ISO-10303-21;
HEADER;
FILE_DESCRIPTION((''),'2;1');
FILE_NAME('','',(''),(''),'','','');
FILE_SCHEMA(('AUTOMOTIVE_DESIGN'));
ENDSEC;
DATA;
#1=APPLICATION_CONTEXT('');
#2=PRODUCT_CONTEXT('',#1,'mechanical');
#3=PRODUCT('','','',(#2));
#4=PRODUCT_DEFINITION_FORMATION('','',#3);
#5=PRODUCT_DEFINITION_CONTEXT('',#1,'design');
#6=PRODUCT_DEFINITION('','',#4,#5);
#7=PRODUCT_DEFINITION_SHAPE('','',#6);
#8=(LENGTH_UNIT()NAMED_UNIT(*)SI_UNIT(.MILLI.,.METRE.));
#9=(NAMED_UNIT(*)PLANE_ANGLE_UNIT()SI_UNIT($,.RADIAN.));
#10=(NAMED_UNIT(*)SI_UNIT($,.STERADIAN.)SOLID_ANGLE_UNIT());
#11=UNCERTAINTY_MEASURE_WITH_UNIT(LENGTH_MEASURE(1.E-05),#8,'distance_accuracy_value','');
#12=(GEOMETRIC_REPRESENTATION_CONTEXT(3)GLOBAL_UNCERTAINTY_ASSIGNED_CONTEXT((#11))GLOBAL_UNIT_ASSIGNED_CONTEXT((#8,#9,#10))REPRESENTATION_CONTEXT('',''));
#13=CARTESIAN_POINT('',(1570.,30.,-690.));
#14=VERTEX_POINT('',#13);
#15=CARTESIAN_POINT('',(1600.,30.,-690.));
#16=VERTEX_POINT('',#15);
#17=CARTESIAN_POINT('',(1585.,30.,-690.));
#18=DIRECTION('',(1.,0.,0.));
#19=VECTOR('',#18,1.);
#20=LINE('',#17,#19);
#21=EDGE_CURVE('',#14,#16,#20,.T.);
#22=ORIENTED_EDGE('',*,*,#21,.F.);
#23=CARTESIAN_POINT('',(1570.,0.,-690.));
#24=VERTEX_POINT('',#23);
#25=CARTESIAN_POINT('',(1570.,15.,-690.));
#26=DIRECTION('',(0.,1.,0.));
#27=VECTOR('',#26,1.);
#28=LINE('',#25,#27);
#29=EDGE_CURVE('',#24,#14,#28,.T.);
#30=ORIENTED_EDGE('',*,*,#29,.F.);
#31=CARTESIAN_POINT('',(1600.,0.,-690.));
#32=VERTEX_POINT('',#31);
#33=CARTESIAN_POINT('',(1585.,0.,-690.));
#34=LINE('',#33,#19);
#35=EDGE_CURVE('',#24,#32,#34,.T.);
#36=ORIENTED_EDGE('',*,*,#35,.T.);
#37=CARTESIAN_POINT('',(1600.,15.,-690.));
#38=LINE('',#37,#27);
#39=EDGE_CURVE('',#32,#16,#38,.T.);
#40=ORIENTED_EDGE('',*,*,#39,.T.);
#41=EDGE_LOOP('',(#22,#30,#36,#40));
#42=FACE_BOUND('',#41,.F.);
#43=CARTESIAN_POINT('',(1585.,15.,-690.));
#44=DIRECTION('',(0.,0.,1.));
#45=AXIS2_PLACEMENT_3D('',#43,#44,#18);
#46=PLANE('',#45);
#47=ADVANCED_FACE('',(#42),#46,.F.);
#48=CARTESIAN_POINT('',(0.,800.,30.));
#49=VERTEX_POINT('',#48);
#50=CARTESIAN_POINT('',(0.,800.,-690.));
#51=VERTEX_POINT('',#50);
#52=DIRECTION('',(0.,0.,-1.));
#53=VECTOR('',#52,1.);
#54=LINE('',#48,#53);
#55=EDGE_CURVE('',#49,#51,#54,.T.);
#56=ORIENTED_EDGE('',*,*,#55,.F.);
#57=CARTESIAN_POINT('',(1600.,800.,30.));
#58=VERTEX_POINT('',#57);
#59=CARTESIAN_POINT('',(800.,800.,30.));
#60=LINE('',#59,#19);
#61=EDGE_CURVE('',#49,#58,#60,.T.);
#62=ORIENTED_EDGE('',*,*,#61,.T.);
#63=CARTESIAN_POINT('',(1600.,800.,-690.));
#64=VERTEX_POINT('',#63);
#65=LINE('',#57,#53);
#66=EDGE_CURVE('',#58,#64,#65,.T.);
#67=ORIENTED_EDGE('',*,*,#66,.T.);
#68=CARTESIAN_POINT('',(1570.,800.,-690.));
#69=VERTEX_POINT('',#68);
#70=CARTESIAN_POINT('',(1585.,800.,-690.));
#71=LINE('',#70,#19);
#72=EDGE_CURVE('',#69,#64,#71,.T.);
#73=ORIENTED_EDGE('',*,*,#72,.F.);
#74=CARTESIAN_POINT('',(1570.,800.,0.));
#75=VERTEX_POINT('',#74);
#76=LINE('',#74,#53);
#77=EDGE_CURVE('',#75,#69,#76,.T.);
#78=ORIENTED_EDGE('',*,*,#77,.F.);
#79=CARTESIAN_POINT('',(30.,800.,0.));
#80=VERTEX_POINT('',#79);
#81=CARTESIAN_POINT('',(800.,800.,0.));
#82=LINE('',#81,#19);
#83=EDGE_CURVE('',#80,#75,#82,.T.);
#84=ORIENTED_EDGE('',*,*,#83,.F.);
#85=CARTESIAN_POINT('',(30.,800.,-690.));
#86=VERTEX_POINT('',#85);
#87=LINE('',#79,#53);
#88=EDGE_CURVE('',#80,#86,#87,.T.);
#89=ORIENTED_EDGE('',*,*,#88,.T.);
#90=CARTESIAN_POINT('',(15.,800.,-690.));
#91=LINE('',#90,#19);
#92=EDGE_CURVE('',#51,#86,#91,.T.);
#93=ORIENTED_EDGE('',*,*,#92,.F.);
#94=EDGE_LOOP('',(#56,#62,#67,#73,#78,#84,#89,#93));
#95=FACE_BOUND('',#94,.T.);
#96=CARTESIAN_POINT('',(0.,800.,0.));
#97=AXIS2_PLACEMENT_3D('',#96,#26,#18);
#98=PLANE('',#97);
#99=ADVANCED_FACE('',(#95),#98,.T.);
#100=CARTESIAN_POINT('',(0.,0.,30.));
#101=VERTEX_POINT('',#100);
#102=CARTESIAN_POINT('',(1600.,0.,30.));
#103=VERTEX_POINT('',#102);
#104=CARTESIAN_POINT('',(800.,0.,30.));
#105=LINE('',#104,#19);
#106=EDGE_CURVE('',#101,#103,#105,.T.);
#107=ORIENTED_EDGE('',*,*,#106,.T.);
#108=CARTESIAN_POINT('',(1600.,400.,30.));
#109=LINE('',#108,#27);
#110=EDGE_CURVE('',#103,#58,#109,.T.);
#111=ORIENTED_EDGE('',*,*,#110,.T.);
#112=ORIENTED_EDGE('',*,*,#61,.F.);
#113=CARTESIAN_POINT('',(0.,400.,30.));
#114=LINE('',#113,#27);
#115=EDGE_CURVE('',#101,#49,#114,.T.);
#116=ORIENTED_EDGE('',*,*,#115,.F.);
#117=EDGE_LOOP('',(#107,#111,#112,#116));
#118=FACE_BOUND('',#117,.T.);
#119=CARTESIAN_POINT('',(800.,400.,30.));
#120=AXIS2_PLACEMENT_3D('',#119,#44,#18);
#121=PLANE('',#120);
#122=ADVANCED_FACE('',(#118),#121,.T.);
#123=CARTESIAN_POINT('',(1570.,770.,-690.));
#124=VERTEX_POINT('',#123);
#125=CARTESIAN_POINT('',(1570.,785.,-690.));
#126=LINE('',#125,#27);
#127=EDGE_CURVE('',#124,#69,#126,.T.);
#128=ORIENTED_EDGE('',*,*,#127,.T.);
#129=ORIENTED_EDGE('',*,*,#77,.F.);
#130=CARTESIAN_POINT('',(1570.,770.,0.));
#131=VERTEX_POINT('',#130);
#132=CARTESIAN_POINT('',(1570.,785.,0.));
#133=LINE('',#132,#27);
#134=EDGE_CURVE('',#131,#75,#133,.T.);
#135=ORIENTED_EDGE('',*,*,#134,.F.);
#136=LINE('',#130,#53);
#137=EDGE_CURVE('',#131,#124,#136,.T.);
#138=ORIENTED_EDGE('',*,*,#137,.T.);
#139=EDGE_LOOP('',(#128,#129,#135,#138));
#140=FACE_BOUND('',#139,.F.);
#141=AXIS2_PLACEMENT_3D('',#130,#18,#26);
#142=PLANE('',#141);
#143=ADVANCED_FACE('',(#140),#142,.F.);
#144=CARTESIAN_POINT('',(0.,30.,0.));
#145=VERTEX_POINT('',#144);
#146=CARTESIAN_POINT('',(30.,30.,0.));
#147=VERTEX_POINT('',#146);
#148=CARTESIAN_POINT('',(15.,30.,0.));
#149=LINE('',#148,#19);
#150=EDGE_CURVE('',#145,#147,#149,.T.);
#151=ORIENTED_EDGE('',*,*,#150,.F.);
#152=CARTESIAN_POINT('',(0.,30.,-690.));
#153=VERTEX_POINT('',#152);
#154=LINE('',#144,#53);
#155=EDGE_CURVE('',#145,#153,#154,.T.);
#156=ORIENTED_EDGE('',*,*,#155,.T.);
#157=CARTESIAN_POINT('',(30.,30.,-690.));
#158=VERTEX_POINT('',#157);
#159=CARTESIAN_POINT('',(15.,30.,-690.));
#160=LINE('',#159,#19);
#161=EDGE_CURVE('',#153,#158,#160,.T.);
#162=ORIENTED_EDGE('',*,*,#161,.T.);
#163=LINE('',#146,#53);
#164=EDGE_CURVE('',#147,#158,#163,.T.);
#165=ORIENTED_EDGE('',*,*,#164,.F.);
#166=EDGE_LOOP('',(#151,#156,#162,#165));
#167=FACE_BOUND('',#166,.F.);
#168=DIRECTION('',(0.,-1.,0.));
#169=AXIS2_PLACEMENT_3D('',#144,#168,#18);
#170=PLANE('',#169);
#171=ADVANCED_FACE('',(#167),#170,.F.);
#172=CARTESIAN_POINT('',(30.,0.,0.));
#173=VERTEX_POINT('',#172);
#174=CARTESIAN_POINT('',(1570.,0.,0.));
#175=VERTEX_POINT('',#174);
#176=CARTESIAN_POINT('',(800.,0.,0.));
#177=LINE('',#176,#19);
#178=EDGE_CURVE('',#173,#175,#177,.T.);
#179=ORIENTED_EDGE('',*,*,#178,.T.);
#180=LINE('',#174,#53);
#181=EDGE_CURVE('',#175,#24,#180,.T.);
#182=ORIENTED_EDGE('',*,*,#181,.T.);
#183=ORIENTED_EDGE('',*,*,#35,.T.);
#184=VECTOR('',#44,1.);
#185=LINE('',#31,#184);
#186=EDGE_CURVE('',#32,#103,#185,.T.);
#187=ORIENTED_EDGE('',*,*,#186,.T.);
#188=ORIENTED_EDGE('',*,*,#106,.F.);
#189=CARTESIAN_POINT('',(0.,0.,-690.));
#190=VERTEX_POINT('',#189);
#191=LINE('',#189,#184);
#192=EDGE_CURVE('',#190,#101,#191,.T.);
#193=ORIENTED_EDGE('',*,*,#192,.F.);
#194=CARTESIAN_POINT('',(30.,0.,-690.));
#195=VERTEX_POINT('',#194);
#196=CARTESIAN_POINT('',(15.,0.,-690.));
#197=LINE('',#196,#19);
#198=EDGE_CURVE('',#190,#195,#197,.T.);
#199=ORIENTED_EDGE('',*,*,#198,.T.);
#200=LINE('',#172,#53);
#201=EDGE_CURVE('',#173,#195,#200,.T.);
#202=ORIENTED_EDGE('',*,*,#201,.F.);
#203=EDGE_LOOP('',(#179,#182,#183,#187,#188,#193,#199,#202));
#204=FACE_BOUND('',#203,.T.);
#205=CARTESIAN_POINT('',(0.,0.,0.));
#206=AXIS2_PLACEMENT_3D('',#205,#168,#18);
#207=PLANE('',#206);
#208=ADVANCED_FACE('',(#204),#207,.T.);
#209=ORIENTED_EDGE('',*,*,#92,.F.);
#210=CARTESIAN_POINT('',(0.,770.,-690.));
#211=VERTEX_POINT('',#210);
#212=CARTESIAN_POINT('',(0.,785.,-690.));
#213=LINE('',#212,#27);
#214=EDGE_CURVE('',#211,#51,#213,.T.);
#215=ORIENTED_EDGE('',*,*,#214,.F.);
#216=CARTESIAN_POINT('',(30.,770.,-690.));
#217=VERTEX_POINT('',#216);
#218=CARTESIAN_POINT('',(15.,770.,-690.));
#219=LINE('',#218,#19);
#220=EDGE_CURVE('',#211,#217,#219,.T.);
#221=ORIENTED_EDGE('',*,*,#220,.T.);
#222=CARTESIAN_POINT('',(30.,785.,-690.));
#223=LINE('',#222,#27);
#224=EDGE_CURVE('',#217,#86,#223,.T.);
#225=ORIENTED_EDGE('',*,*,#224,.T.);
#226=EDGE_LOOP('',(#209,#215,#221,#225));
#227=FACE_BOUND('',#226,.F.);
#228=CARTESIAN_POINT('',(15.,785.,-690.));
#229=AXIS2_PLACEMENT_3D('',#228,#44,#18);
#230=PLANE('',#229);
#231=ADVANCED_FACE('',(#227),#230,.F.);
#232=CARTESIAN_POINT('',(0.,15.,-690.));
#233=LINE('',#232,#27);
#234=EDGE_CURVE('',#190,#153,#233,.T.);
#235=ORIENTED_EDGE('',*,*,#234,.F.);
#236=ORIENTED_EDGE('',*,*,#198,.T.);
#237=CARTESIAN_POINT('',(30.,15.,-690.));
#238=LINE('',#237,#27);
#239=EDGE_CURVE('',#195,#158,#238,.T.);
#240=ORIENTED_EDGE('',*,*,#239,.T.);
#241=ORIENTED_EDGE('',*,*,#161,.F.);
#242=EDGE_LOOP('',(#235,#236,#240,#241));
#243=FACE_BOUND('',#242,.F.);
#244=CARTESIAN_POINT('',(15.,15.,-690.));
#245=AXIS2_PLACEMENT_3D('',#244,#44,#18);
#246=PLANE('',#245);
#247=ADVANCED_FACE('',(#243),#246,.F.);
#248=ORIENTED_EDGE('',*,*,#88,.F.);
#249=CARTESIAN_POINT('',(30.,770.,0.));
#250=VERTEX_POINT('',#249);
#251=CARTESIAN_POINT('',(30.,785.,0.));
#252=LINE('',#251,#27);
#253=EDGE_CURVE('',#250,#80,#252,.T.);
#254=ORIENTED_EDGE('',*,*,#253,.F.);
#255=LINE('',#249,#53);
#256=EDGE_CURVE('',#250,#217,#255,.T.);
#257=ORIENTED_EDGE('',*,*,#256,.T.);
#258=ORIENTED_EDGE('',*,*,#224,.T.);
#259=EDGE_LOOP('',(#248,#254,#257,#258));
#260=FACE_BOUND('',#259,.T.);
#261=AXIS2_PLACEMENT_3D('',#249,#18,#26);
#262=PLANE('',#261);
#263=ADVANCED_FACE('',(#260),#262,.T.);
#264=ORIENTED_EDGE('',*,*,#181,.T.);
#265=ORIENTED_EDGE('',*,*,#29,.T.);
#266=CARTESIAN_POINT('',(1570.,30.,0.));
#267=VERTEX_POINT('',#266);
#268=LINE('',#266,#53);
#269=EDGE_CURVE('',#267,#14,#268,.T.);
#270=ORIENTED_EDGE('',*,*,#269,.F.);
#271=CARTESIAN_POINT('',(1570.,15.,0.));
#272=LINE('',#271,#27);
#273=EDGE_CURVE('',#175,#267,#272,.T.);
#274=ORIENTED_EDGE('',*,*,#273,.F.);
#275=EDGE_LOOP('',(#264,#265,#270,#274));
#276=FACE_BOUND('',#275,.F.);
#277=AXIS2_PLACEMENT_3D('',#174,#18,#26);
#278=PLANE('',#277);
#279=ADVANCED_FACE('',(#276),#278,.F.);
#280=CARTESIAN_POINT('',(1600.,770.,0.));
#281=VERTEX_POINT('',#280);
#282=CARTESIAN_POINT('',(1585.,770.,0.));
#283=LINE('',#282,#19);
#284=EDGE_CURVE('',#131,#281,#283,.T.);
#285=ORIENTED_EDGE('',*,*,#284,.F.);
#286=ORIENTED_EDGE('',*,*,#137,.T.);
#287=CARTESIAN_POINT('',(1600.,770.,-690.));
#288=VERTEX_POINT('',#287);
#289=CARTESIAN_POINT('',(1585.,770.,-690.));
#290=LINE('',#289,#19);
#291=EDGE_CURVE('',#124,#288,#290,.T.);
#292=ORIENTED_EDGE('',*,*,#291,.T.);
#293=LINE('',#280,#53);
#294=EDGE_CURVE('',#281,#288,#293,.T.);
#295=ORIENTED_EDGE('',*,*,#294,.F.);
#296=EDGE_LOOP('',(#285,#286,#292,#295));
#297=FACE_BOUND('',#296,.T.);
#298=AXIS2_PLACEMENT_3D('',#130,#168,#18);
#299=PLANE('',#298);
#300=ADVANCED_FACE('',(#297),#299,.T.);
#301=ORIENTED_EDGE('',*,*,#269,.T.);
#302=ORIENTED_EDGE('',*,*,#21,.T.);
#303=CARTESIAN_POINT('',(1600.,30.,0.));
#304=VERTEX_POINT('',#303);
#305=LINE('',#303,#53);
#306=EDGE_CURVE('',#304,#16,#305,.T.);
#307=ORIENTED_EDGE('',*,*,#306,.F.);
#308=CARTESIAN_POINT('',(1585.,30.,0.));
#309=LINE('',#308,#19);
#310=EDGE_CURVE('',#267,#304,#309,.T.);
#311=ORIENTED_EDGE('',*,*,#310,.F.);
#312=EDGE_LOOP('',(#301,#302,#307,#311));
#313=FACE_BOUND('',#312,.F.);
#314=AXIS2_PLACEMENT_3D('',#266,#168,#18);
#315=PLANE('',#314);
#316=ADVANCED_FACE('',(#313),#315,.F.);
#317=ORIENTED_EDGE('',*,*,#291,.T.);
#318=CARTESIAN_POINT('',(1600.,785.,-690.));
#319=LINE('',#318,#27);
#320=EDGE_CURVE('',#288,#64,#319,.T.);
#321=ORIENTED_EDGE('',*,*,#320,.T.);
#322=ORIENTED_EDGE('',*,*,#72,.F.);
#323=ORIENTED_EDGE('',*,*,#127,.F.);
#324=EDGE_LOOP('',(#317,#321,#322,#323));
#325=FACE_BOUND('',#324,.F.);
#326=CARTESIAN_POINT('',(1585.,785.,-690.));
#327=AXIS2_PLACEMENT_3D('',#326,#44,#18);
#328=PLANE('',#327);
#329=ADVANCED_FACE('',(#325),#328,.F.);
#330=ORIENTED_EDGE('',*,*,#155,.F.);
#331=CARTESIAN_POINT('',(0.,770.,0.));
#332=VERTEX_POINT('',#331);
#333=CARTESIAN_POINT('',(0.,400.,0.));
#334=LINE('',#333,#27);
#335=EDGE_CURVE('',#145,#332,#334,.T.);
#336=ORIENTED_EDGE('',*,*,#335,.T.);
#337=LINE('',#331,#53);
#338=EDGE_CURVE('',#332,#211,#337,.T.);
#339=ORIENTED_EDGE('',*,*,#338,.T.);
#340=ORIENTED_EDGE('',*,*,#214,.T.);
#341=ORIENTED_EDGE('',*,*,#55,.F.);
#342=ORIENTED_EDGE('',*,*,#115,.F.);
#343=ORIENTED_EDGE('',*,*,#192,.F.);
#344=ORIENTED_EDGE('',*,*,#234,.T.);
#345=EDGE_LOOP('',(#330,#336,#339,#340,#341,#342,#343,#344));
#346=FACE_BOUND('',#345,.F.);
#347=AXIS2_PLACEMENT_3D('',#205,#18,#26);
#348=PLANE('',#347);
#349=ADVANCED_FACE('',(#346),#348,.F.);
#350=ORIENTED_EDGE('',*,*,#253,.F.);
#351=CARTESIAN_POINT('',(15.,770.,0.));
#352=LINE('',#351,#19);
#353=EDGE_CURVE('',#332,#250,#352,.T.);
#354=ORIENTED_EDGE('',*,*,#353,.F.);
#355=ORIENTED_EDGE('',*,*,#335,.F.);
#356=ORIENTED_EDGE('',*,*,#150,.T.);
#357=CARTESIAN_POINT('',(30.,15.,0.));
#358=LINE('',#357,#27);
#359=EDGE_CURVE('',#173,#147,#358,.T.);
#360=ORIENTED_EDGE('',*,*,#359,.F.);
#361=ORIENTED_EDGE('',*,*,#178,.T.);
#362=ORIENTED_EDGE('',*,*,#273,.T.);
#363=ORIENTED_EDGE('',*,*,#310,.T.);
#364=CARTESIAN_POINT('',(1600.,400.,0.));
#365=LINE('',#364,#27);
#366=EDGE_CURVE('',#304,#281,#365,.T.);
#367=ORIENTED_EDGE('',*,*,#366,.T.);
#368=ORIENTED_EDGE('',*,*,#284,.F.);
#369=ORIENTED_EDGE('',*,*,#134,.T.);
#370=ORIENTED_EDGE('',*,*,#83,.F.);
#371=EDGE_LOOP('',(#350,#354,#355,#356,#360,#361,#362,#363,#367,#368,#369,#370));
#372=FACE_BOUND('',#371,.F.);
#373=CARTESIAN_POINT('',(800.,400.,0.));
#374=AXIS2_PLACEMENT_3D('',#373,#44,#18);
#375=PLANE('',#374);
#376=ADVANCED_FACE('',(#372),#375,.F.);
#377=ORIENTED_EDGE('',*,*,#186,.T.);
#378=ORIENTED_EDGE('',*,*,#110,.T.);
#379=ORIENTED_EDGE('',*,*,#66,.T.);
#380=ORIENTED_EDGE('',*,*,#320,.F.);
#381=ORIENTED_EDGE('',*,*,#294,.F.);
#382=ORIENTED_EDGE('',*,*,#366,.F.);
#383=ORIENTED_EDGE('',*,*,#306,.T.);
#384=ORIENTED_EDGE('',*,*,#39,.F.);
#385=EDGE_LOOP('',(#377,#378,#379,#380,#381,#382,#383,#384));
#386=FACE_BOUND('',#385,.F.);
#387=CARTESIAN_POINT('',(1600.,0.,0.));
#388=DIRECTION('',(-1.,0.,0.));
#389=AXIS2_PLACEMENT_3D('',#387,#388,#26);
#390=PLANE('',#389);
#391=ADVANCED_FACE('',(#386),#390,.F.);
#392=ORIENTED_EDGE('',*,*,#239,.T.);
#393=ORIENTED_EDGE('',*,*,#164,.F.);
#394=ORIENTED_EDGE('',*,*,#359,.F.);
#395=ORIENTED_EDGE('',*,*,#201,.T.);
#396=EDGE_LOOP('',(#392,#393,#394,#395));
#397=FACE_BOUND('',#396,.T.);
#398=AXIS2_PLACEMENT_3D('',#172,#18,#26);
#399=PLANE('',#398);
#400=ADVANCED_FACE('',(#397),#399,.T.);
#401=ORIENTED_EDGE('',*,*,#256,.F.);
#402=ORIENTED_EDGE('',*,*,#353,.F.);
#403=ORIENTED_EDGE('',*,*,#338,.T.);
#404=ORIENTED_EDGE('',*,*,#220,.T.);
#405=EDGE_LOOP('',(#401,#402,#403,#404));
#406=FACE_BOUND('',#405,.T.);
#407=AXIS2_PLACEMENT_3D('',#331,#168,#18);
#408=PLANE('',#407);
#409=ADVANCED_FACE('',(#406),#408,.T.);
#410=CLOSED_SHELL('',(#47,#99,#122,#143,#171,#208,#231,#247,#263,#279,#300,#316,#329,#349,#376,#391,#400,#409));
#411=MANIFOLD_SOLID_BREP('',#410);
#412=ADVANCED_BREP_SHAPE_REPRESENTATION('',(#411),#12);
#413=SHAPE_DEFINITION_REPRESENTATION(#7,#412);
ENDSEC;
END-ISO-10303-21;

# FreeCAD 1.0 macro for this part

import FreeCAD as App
import Part
import Sketcher

doc = App.newDocument("Part")
body = doc.addObject("PartDesign::Body", "Body")

# Sketch on XY plane
sketch1 = body.newObject("Sketcher::SketchObject", "Sketch")
sketch1.AttachmentSupport = (doc.getObject("XY_Plane"), [""])
sketch1.MapMode = "FlatFace"
sketch1.addGeometry([
    Part.LineSegment(App.Vector(0, 800, 0), App.Vector(0, 0, 0)),
    Part.LineSegment(App.Vector(0, 0, 0), App.Vector(1600, 0, 0)),
    Part.LineSegment(App.Vector(1600, 0, 0), App.Vector(1600, 800, 0)),
    Part.LineSegment(App.Vector(1600, 800, 0), App.Vector(0, 800, 0)),
], False)
sketch1.addConstraint([
    Sketcher.Constraint("Coincident", 0, 2, 1, 1),
    Sketcher.Constraint("Coincident", 1, 2, 2, 1),
    Sketcher.Constraint("Coincident", 2, 2, 3, 1),
    Sketcher.Constraint("Coincident", 3, 2, 0, 1),
    Sketcher.Constraint("Vertical", 0),
    Sketcher.Constraint("Horizontal", 1),
    Sketcher.Constraint("Vertical", 2),
    Sketcher.Constraint("Horizontal", 3),
    Sketcher.Constraint("Coincident", 0, 2, -1, 1),
    Sketcher.Constraint("DistanceX", 1, 1, 1, 2, 1600.0),
    Sketcher.Constraint("DistanceY", 0, 2, 0, 1, 800.0),
])
pad1 = body.newObject("PartDesign::Pad", "Pad")
pad1.Profile = sketch1
pad1.Length = 30

# Sketch on XY plane
sketch2 = body.newObject("Sketcher::SketchObject", "Sketch001")
sketch2.AttachmentSupport = (doc.getObject("XY_Plane"), [""])
sketch2.MapMode = "FlatFace"
sketch2.addGeometry([
    Part.LineSegment(App.Vector(0, 30, 0), App.Vector(0, 0, 0)),  # 0
    Part.LineSegment(App.Vector(0, 0, 0), App.Vector(30, 0, 0)),  # 1
    Part.LineSegment(App.Vector(30, 0, 0), App.Vector(30, 30, 0)),  # 2
    Part.LineSegment(App.Vector(30, 30, 0), App.Vector(0, 30, 0)),  # 3
    Part.LineSegment(App.Vector(0, 800, 0), App.Vector(0, 770, 0)),  # 4
    Part.LineSegment(App.Vector(0, 770, 0), App.Vector(30, 770, 0)),  # 5
    Part.LineSegment(App.Vector(30, 770, 0), App.Vector(30, 800, 0)),  # 6
    Part.LineSegment(App.Vector(30, 800, 0), App.Vector(0, 800, 0)),  # 7
    Part.LineSegment(App.Vector(1570, 30, 0), App.Vector(1570, 0, 0)),  # 8
    Part.LineSegment(App.Vector(1570, 0, 0), App.Vector(1600, 0, 0)),  # 9
    Part.LineSegment(App.Vector(1600, 0, 0), App.Vector(1600, 30, 0)),  # 10
    Part.LineSegment(App.Vector(1600, 30, 0), App.Vector(1570, 30, 0)),  # 11
    Part.LineSegment(App.Vector(1570, 800, 0), App.Vector(1570, 770, 0)),  # 12
    Part.LineSegment(App.Vector(1570, 770, 0), App.Vector(1600, 770, 0)),  # 13
    Part.LineSegment(App.Vector(1600, 770, 0), App.Vector(1600, 800, 0)),  # 14
    Part.LineSegment(App.Vector(1600, 800, 0), App.Vector(1570, 800, 0)),  # 15
], False)
sketch2.addConstraint([
    Sketcher.Constraint("Coincident", 0, 2, 1, 1),
    Sketcher.Constraint("Coincident", 1, 2, 2, 1),
    Sketcher.Constraint("Coincident", 2, 2, 3, 1),
    Sketcher.Constraint("Coincident", 3, 2, 0, 1),
    Sketcher.Constraint("Coincident", 4, 2, 5, 1),
    Sketcher.Constraint("Coincident", 5, 2, 6, 1),
    Sketcher.Constraint("Coincident", 6, 2, 7, 1),
    Sketcher.Constraint("Coincident", 7, 2, 4, 1),
    Sketcher.Constraint("Coincident", 8, 2, 9, 1),
    Sketcher.Constraint("Coincident", 9, 2, 10, 1),
    Sketcher.Constraint("Coincident", 10, 2, 11, 1),
    Sketcher.Constraint("Coincident", 11, 2, 8, 1),
    Sketcher.Constraint("Coincident", 12, 2, 13, 1),
    Sketcher.Constraint("Coincident", 13, 2, 14, 1),
    Sketcher.Constraint("Coincident", 14, 2, 15, 1),
    Sketcher.Constraint("Coincident", 15, 2, 12, 1),
    Sketcher.Constraint("Vertical", 0),
    Sketcher.Constraint("Horizontal", 1),
    Sketcher.Constraint("Vertical", 2),
    Sketcher.Constraint("Horizontal", 3),
    Sketcher.Constraint("Vertical", 4),
    Sketcher.Constraint("Horizontal", 5),
    Sketcher.Constraint("Vertical", 6),
    Sketcher.Constraint("Horizontal", 7),
    Sketcher.Constraint("Vertical", 8),
    Sketcher.Constraint("Horizontal", 9),
    Sketcher.Constraint("Vertical", 10),
    Sketcher.Constraint("Horizontal", 11),
    Sketcher.Constraint("Vertical", 12),
    Sketcher.Constraint("Horizontal", 13),
    Sketcher.Constraint("Vertical", 14),
    Sketcher.Constraint("Horizontal", 15),
    Sketcher.Constraint("Coincident", 0, 2, -1, 1),
    Sketcher.Constraint("PointOnObject", 4, 2, -2),
    Sketcher.Constraint("PointOnObject", 8, 2, -1),
    Sketcher.Constraint("Horizontal", 3, 2, 10, 2),
    Sketcher.Constraint("Horizontal", 5, 2, 12, 2),
    Sketcher.Constraint("Horizontal", 7, 2, 14, 2),
    Sketcher.Constraint("Vertical", 2, 2, 5, 2),
    Sketcher.Constraint("Vertical", 11, 2, 12, 2),
    Sketcher.Constraint("Vertical", 10, 2, 13, 2),
    Sketcher.Constraint("Equal", 7, 9),
    Sketcher.Constraint("Equal", 15, 0),
    Sketcher.Constraint("Equal", 2, 4),
    Sketcher.Constraint("DistanceX", 1, 1, 1, 2, 30.0),
    Sketcher.Constraint("DistanceY", -1, 1, 4, 2, 770.0),
    Sketcher.Constraint("DistanceX", -1, 1, 8, 2, 1570.0),
])
pad2 = body.newObject("PartDesign::Pad", "Pad001")
pad2.Profile = sketch2
pad2.Length = 690
pad2.Reversed = True

doc.recompute()
